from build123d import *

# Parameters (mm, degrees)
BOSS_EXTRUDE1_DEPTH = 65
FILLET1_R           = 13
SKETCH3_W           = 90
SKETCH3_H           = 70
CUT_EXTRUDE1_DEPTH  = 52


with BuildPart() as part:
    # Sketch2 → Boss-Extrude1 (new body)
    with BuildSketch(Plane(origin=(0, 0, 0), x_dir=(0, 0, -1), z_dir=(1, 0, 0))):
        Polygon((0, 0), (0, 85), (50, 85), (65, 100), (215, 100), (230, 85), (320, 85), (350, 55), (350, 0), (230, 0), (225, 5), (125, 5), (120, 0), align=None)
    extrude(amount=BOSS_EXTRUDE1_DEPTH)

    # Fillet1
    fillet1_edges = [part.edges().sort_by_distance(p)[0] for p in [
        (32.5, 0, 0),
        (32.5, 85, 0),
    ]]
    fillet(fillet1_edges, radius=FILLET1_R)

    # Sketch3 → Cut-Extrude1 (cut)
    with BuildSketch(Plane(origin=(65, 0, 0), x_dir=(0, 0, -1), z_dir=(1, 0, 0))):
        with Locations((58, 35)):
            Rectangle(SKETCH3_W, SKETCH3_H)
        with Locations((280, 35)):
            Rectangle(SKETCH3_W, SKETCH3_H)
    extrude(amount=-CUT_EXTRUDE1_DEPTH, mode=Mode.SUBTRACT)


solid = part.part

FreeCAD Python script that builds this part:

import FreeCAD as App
import Part
import Sketcher
Q = App.Units.Quantity


def edges_at(feature, points):
    """Names of the edges that pass closest to the given points."""
    edges = feature.Shape.Edges
    near = lambda p: min(range(len(edges)), key=lambda i: edges[i].distToShape(Part.Vertex(*p))[0])
    return sorted({f"Edge{near(p) + 1}" for p in points})


def add_polygon(sketch, points):
    """Adds a closed chain of lines whose ends are joined by coincident constraints."""
    first, n = sketch.GeometryCount, len(points)
    for a, b in zip(points, points[1:] + points[:1]):
        sketch.addGeometry(Part.LineSegment(App.Vector(*a, 0), App.Vector(*b, 0)), False)
    for i in range(n):
        sketch.addConstraint(Sketcher.Constraint("Coincident", first + i, 2, first + (i + 1) % n, 1))

doc = App.newDocument("Part")
body = doc.addObject("PartDesign::Body", "Body")

sketch1 = doc.addObject("Sketcher::SketchObject", "Sketch")
body.addObject(sketch1)
sketch1.AttachmentSupport = (doc.YZ_Plane, [""])
sketch1.MapMode = "FlatFace"
add_polygon(sketch1, [(85, 0), (0, 0), (0, -120), (5, -125), (5, -225), (0, -230), (0, -350), (55, -350), (85, -320), (85, -230), (100, -215), (100, -65), (85, -50)])
sketch1.addConstraint([
    Sketcher.Constraint("Horizontal", 0),
    Sketcher.Constraint("Vertical", 1),
    Sketcher.Constraint("Vertical", 3),
    Sketcher.Constraint("Vertical", 5),
    Sketcher.Constraint("Horizontal", 6),
    Sketcher.Constraint("Vertical", 8),
    Sketcher.Constraint("Vertical", 10),
    Sketcher.Constraint("Vertical", 12),
    Sketcher.Constraint("Coincident", 0, 2, -1, 1),
    Sketcher.Constraint("PointOnObject", 4, 2, -2),
    Sketcher.Constraint("Perpendicular", 2, 4),
    Sketcher.Constraint("Parallel", 4, 7),
    Sketcher.Constraint("Parallel", 7, 9),
    Sketcher.Constraint("Perpendicular", 9, 11),
    Sketcher.Constraint("Horizontal", 4, 2, 8, 2),
    Sketcher.Constraint("Vertical", 8, 2, 11, 2),
    Sketcher.Constraint("Equal", 1, 5),
    Sketcher.Constraint("Equal", 2, 4),
    Sketcher.Constraint("DistanceX", 0, 2, 0, 1, Q("85 mm")),
    Sketcher.Constraint("DistanceX", 6, 1, 6, 2, Q("55 mm")),
    Sketcher.Constraint("DistanceY", 1, 2, 1, 1, Q("120 mm")),
    Sketcher.Constraint("DistanceY", 3, 2, 3, 1, Q("100 mm")),
    Sketcher.Constraint("DistanceY", 10, 1, 10, 2, Q("150 mm")),
    Sketcher.Constraint("DistanceY", 12, 1, 12, 2, Q("50 mm")),
    Sketcher.Constraint("DistanceX", -1, 1, 2, 2, Q("5 mm")),
])
pad1 = doc.addObject("PartDesign::Pad", "Pad")
body.addObject(pad1)
pad1.Profile = sketch1
pad1.Length = 65
doc.recompute()

fillet = doc.addObject("PartDesign::Fillet", "Fillet")
body.addObject(fillet)
fillet.Base = (pad1, edges_at(pad1, [(32.5, 0, 0), (32.5, 85, 0)]))
fillet.Radius = 13

sketch2 = doc.addObject("Sketcher::SketchObject", "Sketch001")
body.addObject(sketch2)
sketch2.AttachmentSupport = (doc.YZ_Plane, [""])
sketch2.MapMode = "FlatFace"
sketch2.AttachmentOffset = App.Placement(App.Vector(0, 0, 65), App.Rotation())
add_polygon(sketch2, [(70, -13), (0, -13), (0, -103), (70, -103)])
add_polygon(sketch2, [(70, -235), (0, -235), (0, -325), (70, -325)])
sketch2.addConstraint([
    Sketcher.Constraint("Horizontal", 0),
    Sketcher.Constraint("Vertical", 1),
    Sketcher.Constraint("Horizontal", 2),
    Sketcher.Constraint("Vertical", 3),
    Sketcher.Constraint("Horizontal", 4),
    Sketcher.Constraint("Vertical", 5),
    Sketcher.Constraint("Horizontal", 6),
    Sketcher.Constraint("Vertical", 7),
    Sketcher.Constraint("PointOnObject", 0, 2, -2),
    Sketcher.Constraint("PointOnObject", 4, 2, -2),
    Sketcher.Constraint("Vertical", 3, 2, 6, 2),
    Sketcher.Constraint("Equal", 3, 5),
    Sketcher.Constraint("DistanceX", 0, 2, 0, 1, Q("70 mm")),
    Sketcher.Constraint("DistanceY", 1, 2, 1, 1, Q("90 mm")),
    Sketcher.Constraint("DistanceY", 0, 2, -1, 1, Q("13 mm")),
    Sketcher.Constraint("DistanceY", 4, 2, -1, 1, Q("235 mm")),
])
pocket1 = doc.addObject("PartDesign::Pocket", "Pocket")
body.addObject(pocket1)
pocket1.Profile = sketch2
pocket1.Length = 52

doc.recompute()
